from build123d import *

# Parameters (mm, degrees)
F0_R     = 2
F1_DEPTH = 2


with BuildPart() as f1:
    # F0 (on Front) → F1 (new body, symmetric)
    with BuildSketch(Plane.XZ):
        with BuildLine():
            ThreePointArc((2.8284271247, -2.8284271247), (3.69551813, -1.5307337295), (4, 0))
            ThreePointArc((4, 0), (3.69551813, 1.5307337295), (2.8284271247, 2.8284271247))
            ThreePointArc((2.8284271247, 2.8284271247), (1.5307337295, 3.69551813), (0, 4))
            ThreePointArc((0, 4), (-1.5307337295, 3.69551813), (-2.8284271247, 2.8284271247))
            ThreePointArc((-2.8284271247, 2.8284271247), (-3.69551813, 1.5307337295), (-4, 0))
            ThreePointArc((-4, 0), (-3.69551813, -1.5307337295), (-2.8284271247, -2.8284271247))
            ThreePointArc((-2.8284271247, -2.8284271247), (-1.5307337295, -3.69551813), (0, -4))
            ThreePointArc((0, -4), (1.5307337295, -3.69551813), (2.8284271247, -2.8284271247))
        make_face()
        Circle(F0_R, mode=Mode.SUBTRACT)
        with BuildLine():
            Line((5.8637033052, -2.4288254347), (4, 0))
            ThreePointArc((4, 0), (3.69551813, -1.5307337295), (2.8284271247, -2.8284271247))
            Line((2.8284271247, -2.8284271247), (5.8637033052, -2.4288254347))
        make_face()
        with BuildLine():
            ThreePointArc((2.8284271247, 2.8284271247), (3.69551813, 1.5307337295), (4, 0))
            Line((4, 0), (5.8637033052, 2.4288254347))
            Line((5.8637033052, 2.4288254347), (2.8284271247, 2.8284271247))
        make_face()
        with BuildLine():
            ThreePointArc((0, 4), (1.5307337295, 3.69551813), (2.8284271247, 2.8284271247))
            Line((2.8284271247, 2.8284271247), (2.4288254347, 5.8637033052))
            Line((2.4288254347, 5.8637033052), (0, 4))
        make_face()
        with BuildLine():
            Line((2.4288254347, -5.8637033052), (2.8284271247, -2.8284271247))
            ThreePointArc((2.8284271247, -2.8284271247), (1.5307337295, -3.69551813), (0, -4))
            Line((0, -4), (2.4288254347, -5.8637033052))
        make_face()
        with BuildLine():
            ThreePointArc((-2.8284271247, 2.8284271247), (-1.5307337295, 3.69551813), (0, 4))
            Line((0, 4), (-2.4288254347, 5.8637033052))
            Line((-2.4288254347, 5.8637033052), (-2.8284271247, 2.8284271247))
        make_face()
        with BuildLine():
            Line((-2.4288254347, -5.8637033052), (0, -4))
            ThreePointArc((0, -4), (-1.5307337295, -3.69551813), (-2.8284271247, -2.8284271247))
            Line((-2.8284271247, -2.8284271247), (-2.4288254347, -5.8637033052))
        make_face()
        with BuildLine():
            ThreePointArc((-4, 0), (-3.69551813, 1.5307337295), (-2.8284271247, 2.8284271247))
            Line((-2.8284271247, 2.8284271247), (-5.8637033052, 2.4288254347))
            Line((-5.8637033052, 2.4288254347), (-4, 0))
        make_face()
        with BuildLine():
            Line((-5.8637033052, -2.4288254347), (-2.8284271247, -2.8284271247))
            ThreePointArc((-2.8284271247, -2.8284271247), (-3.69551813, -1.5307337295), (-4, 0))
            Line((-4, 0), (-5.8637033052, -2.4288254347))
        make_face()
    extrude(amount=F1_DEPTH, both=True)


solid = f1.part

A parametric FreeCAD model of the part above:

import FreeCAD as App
import Part
import Sketcher

V = App.Vector
Q = App.Units.Quantity


def add_polygon(sketch, points):
    """Adds a closed chain of lines whose ends are joined by coincident constraints."""
    first, n = sketch.GeometryCount, len(points)
    for a, b in zip(points, points[1:] + points[:1]):
        sketch.addGeometry(Part.LineSegment(App.Vector(*a, 0), App.Vector(*b, 0)), False)
    for i in range(n):
        sketch.addConstraint(Sketcher.Constraint("Coincident", first + i, 2, first + (i + 1) % n, 1))

doc = App.newDocument("Part")
body = doc.addObject("PartDesign::Body", "Body")

# Sketch on XZ plane
sketch1 = body.newObject("Sketcher::SketchObject", "Sketch")
sketch1.AttachmentSupport = (doc.getObject("XZ_Plane"), [""])
sketch1.MapMode = "FlatFace"
add_polygon(sketch1, [(2.8, -2.8), (5.9, -2.4), (4, 0), (5.9, 2.4), (2.8, 2.8), (2.4, 5.9), (0, 4), (-2.4, 5.9), (-2.8, 2.8), (-5.9, 2.4), (-4, 0), (-5.9, -2.4), (-2.8, -2.8), (-2.4, -5.9), (0, -4), (2.4, -5.9)])  # lines 0-15
sketch1.addGeometry(Part.Circle(V(0, 0, 0), V(0, 0, 1), 2), False)  # 16
sketch1.addConstraint([
    Sketcher.Constraint("Coincident", 16, 3, -1, 1),
    Sketcher.Constraint("Symmetric", 0, 2, 8, 2, -1, 1),
    Sketcher.Constraint("Symmetric", 1, 2, 9, 2, -1, 1),
    Sketcher.Constraint("Symmetric", 2, 2, 10, 2, -1, 1),
    Sketcher.Constraint("Symmetric", 3, 2, 11, 2, -1, 1),
    Sketcher.Constraint("Symmetric", 4, 2, 12, 2, -1, 1),
    Sketcher.Constraint("Symmetric", 5, 2, 13, 2, -1, 1),
    Sketcher.Constraint("Symmetric", 6, 2, 14, 2, -1, 1),
    Sketcher.Constraint("Symmetric", 7, 2, 15, 2, -1, 1),
    Sketcher.Constraint("Symmetric", 4, 2, 6, 2, -2),
    Sketcher.Constraint("Symmetric", 3, 2, 7, 2, -2),
    Sketcher.Constraint("Symmetric", 2, 2, 8, 2, -2),
    Sketcher.Constraint("PointOnObject", 1, 2, -1),
    Sketcher.Constraint("PointOnObject", 5, 2, -2),
    Sketcher.Constraint("Perpendicular", 0, 4),
    Sketcher.Constraint("Perpendicular", 1, 5),
    Sketcher.Constraint("Equal", 0, 1),
    Sketcher.Constraint("Equal", 3, 4),
    Sketcher.Constraint("Equal", 4, 5),
    Sketcher.Constraint("Diameter", 16, 4.0),
    Sketcher.Constraint("DistanceX", -1, 1, 1, 2, 4.0),
    Sketcher.Constraint("Angle", 0, Q("7.5 deg")),
    Sketcher.Constraint("Angle", 1, Q("127.5 deg")),
])
pad1 = body.newObject("PartDesign::Pad", "Pad")
pad1.Profile = sketch1
pad1.Length = 4
pad1.Midplane = True

doc.recompute()
